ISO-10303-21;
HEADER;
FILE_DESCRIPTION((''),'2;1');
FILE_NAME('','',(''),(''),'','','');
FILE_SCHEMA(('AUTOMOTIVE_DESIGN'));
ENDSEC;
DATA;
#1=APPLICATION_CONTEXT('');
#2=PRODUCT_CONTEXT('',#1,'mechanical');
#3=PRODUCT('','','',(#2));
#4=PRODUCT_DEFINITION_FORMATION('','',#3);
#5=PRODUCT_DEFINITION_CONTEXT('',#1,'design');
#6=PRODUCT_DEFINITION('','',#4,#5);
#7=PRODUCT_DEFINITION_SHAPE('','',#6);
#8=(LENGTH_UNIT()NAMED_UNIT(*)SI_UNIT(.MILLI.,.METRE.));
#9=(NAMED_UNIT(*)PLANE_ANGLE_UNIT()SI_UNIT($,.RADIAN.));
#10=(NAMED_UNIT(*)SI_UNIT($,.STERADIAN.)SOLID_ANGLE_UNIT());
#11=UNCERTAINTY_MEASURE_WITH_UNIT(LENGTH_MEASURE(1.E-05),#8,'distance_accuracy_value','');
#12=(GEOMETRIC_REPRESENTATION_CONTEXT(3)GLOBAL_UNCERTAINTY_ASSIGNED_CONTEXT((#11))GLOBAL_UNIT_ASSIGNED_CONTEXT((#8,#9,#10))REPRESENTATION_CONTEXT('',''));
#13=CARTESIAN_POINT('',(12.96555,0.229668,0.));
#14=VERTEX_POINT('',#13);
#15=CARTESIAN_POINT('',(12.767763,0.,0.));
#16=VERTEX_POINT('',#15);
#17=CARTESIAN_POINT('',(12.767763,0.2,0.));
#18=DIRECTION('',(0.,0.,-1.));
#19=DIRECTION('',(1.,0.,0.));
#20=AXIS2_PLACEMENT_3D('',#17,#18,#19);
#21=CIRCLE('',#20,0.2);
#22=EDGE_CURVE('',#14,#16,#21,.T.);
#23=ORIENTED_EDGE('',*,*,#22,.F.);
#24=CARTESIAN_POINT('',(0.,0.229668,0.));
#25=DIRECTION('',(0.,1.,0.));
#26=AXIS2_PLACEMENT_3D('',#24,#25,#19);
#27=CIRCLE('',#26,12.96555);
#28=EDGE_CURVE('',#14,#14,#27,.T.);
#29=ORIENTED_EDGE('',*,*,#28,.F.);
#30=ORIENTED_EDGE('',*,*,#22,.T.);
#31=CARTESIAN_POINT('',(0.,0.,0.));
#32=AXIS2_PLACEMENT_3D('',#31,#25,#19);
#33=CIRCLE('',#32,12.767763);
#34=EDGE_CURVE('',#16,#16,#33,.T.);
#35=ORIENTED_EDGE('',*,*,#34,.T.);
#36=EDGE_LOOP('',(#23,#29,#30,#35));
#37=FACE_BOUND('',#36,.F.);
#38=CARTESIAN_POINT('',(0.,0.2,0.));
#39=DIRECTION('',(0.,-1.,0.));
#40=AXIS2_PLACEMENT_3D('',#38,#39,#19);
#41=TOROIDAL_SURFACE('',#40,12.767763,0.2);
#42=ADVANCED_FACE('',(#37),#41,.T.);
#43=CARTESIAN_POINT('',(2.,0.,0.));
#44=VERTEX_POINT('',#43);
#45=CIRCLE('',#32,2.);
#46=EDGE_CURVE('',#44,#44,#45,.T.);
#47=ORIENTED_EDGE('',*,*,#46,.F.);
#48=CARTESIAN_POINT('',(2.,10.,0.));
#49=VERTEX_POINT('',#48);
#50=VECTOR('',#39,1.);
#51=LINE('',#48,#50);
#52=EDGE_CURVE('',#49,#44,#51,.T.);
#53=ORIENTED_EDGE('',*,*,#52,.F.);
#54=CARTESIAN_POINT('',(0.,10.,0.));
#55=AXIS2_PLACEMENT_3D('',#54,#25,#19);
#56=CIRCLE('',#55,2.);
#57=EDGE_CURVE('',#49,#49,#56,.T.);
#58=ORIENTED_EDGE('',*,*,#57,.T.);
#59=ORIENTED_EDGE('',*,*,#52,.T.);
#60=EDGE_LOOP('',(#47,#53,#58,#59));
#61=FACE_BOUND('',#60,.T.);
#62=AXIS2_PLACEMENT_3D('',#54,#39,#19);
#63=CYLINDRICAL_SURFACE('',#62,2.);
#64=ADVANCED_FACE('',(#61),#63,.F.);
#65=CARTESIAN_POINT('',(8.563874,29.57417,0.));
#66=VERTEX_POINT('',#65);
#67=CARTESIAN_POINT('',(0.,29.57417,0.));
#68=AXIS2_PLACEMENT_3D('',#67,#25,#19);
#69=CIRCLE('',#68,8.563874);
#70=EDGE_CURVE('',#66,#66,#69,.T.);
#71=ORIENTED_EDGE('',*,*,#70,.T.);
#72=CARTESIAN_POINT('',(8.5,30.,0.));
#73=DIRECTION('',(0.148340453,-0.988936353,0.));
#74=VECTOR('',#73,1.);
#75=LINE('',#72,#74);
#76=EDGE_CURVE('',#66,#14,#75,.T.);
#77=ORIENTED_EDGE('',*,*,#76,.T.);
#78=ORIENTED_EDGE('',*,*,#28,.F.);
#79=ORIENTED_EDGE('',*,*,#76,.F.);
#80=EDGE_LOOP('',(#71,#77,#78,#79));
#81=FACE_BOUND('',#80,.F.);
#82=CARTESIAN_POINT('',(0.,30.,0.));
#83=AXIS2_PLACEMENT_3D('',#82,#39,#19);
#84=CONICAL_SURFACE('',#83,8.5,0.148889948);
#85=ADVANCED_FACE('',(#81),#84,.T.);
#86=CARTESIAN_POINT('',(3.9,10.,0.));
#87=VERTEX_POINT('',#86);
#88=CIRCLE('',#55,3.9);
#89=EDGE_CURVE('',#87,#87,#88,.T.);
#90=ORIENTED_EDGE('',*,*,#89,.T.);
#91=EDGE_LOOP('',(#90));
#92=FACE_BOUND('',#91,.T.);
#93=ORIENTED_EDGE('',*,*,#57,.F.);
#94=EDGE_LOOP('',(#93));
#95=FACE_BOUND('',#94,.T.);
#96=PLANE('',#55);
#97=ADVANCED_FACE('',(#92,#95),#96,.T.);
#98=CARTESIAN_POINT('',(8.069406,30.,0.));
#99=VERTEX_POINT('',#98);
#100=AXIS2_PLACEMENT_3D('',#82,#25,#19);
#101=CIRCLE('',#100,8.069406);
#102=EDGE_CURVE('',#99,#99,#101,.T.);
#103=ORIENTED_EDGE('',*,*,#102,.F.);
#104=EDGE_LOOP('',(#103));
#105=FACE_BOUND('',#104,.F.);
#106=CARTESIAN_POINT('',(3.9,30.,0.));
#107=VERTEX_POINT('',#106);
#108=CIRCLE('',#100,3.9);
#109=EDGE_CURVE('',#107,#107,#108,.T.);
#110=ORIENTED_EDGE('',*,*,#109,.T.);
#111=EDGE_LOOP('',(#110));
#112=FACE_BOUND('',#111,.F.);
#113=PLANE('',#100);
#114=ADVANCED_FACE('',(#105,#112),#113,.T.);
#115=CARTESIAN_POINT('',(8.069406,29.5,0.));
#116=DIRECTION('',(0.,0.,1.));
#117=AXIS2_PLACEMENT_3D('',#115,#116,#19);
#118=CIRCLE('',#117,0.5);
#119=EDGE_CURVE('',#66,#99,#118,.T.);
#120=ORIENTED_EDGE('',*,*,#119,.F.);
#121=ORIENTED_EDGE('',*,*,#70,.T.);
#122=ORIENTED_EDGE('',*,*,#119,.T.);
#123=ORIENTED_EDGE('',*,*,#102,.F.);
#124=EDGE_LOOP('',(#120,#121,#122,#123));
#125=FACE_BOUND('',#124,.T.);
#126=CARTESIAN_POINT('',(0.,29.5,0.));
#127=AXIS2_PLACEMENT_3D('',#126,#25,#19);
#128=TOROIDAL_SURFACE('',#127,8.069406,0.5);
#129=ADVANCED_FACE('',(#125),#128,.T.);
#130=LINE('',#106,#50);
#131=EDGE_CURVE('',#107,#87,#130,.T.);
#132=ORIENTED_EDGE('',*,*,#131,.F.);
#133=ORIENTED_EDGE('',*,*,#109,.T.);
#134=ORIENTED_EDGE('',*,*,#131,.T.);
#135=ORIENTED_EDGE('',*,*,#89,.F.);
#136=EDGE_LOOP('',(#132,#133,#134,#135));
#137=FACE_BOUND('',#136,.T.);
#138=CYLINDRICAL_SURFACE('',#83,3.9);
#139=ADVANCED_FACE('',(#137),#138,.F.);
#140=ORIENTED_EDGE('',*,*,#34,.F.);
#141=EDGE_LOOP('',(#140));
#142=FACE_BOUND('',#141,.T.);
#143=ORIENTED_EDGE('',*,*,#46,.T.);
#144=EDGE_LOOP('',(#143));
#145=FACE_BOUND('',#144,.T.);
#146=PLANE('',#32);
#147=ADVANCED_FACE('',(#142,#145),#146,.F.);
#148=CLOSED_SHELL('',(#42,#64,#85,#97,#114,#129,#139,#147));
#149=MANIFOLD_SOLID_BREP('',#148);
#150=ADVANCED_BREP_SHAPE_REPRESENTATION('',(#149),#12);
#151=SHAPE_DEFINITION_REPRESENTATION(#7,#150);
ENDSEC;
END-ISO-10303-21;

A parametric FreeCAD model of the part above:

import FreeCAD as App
import Part
import Sketcher
from FreeCAD import Vector


def edges_at(feature, points):
    """Names of the edges that pass closest to the given points."""
    edges = feature.Shape.Edges
    near = lambda p: min(range(len(edges)), key=lambda i: edges[i].distToShape(Part.Vertex(*p))[0])
    return sorted({f"Edge{near(p) + 1}" for p in points})

doc = App.newDocument("Part")
body = doc.addObject("PartDesign::Body", "Body")

# Sketch on XY plane
sketch1 = body.newObject("Sketcher::SketchObject", "Sketch")
sketch1.AttachmentSupport = (doc.getObject("XY_Plane"), [""])
sketch1.MapMode = "FlatFace"
sketch1.addGeometry([
    Part.LineSegment(Vector(8.5, 30, 0), Vector(3.9, 30, 0)),  # 0
    Part.LineSegment(Vector(3.9, 30, 0), Vector(3.9, 10, 0)),  # 1
    Part.LineSegment(Vector(3.9, 10, 0), Vector(2, 10, 0)),  # 2
    Part.LineSegment(Vector(2, 10, 0), Vector(2, 0, 0)),  # 3
    Part.LineSegment(Vector(2, 0, 0), Vector(13, 0, 0)),  # 4
    Part.LineSegment(Vector(13, 0, 0), Vector(8.5, 30, 0)),  # 5
], False)
sketch1.addConstraint([
    Sketcher.Constraint("Coincident", 0, 2, 1, 1),
    Sketcher.Constraint("Coincident", 1, 2, 2, 1),
    Sketcher.Constraint("Coincident", 2, 2, 3, 1),
    Sketcher.Constraint("Coincident", 3, 2, 4, 1),
    Sketcher.Constraint("Coincident", 4, 2, 5, 1),
    Sketcher.Constraint("Coincident", 5, 2, 0, 1),
    Sketcher.Constraint("Horizontal", 0),
    Sketcher.Constraint("Vertical", 1),
    Sketcher.Constraint("Horizontal", 2),
    Sketcher.Constraint("Vertical", 3),
    Sketcher.Constraint("Horizontal", 4),
    Sketcher.Constraint("PointOnObject", 3, 2, -1),
    Sketcher.Constraint("DistanceY", 3, 2, 3, 1, 10.0),
    Sketcher.Constraint("DistanceY", -1, 1, 0, 2, 30.0),
    Sketcher.Constraint("DistanceX", 4, 1, 4, 2, 11.0),
    Sketcher.Constraint("DistanceX", 0, 2, 0, 1, 4.6),
    Sketcher.Constraint("DistanceX", 2, 2, 2, 1, 1.9),
    Sketcher.Constraint("DistanceX", -1, 1, 2, 2, 2.0),
])
revolution = body.newObject("PartDesign::Revolution", "Revolution")
revolution.Profile = sketch1
revolution.ReferenceAxis = (sketch1, ["V_Axis"])
revolution.Angle = 360
doc.recompute()

fillet = body.newObject("PartDesign::Fillet", "Fillet")
fillet.Base = (revolution, edges_at(revolution, [(-13, 0, 0)]))
fillet.Radius = 0.2
doc.recompute()

fillet2 = body.newObject("PartDesign::Fillet", "Fillet001")
fillet2.Base = (fillet, edges_at(fillet, [(-8.5, 30, 0)]))
fillet2.Radius = 0.5

doc.recompute()
